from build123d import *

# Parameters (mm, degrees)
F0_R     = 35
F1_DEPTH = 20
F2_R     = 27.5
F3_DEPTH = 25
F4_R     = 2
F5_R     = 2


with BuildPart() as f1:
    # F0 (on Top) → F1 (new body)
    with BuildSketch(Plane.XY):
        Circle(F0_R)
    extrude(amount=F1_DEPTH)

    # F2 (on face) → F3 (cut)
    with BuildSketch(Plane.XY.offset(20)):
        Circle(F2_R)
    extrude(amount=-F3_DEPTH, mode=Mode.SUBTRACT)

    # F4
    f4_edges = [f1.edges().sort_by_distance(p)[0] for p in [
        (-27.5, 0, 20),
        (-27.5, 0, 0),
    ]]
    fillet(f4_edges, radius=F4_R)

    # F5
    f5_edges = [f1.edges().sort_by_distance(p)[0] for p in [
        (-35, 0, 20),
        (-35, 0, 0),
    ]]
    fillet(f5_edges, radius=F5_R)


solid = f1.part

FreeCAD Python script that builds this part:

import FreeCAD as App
import Part
import Sketcher

V = App.Vector
Q = App.Units.Quantity


def edges_at(feature, points):
    """Names of the edges that pass closest to the given points."""
    edges = feature.Shape.Edges
    near = lambda p: min(range(len(edges)), key=lambda i: edges[i].distToShape(Part.Vertex(*p))[0])
    return sorted({f"Edge{near(p) + 1}" for p in points})

doc = App.newDocument("Part")
body = doc.addObject("PartDesign::Body", "Body")

sketch1 = body.newObject("Sketcher::SketchObject", "Sketch")
sketch1.AttachmentSupport = (doc.getObject("XY_Plane"), [""])
sketch1.MapMode = "FlatFace"
sketch1.addGeometry(Part.Circle(V(0, 0, 0), V(0, 0, 1), 35), False)
sketch1.addConstraint([
    Sketcher.Constraint("Coincident", 0, 3, -1, 1),
    Sketcher.Constraint("Diameter", 0, Q("70 mm")),
])
pad1 = body.newObject("PartDesign::Pad", "Pad")
pad1.Profile = sketch1
pad1.Length = 20

sketch2 = body.newObject("Sketcher::SketchObject", "Sketch001")
sketch2.AttachmentSupport = (doc.getObject("XY_Plane"), [""])
sketch2.MapMode = "FlatFace"
sketch2.AttachmentOffset = App.Placement(V(0, 0, 20), App.Rotation())
sketch2.addGeometry(Part.Circle(V(0, 0, 0), V(0, 0, 1), 28), False)
sketch2.addConstraint([
    Sketcher.Constraint("Coincident", 0, 3, -1, 1),
    Sketcher.Constraint("Diameter", 0, Q("55 mm")),
])
pocket1 = body.newObject("PartDesign::Pocket", "Pocket")
pocket1.Profile = sketch2
pocket1.Length = 25
doc.recompute()

fillet = body.newObject("PartDesign::Fillet", "Fillet")
fillet.Base = (pocket1, edges_at(pocket1, [(-27.5, 0, 20), (-27.5, 0, 0)]))
fillet.Radius = 2
doc.recompute()

fillet2 = body.newObject("PartDesign::Fillet", "Fillet001")
fillet2.Base = (fillet, edges_at(fillet, [(-35, 0, 20), (-35, 0, 0)]))
fillet2.Radius = 2

doc.recompute()
